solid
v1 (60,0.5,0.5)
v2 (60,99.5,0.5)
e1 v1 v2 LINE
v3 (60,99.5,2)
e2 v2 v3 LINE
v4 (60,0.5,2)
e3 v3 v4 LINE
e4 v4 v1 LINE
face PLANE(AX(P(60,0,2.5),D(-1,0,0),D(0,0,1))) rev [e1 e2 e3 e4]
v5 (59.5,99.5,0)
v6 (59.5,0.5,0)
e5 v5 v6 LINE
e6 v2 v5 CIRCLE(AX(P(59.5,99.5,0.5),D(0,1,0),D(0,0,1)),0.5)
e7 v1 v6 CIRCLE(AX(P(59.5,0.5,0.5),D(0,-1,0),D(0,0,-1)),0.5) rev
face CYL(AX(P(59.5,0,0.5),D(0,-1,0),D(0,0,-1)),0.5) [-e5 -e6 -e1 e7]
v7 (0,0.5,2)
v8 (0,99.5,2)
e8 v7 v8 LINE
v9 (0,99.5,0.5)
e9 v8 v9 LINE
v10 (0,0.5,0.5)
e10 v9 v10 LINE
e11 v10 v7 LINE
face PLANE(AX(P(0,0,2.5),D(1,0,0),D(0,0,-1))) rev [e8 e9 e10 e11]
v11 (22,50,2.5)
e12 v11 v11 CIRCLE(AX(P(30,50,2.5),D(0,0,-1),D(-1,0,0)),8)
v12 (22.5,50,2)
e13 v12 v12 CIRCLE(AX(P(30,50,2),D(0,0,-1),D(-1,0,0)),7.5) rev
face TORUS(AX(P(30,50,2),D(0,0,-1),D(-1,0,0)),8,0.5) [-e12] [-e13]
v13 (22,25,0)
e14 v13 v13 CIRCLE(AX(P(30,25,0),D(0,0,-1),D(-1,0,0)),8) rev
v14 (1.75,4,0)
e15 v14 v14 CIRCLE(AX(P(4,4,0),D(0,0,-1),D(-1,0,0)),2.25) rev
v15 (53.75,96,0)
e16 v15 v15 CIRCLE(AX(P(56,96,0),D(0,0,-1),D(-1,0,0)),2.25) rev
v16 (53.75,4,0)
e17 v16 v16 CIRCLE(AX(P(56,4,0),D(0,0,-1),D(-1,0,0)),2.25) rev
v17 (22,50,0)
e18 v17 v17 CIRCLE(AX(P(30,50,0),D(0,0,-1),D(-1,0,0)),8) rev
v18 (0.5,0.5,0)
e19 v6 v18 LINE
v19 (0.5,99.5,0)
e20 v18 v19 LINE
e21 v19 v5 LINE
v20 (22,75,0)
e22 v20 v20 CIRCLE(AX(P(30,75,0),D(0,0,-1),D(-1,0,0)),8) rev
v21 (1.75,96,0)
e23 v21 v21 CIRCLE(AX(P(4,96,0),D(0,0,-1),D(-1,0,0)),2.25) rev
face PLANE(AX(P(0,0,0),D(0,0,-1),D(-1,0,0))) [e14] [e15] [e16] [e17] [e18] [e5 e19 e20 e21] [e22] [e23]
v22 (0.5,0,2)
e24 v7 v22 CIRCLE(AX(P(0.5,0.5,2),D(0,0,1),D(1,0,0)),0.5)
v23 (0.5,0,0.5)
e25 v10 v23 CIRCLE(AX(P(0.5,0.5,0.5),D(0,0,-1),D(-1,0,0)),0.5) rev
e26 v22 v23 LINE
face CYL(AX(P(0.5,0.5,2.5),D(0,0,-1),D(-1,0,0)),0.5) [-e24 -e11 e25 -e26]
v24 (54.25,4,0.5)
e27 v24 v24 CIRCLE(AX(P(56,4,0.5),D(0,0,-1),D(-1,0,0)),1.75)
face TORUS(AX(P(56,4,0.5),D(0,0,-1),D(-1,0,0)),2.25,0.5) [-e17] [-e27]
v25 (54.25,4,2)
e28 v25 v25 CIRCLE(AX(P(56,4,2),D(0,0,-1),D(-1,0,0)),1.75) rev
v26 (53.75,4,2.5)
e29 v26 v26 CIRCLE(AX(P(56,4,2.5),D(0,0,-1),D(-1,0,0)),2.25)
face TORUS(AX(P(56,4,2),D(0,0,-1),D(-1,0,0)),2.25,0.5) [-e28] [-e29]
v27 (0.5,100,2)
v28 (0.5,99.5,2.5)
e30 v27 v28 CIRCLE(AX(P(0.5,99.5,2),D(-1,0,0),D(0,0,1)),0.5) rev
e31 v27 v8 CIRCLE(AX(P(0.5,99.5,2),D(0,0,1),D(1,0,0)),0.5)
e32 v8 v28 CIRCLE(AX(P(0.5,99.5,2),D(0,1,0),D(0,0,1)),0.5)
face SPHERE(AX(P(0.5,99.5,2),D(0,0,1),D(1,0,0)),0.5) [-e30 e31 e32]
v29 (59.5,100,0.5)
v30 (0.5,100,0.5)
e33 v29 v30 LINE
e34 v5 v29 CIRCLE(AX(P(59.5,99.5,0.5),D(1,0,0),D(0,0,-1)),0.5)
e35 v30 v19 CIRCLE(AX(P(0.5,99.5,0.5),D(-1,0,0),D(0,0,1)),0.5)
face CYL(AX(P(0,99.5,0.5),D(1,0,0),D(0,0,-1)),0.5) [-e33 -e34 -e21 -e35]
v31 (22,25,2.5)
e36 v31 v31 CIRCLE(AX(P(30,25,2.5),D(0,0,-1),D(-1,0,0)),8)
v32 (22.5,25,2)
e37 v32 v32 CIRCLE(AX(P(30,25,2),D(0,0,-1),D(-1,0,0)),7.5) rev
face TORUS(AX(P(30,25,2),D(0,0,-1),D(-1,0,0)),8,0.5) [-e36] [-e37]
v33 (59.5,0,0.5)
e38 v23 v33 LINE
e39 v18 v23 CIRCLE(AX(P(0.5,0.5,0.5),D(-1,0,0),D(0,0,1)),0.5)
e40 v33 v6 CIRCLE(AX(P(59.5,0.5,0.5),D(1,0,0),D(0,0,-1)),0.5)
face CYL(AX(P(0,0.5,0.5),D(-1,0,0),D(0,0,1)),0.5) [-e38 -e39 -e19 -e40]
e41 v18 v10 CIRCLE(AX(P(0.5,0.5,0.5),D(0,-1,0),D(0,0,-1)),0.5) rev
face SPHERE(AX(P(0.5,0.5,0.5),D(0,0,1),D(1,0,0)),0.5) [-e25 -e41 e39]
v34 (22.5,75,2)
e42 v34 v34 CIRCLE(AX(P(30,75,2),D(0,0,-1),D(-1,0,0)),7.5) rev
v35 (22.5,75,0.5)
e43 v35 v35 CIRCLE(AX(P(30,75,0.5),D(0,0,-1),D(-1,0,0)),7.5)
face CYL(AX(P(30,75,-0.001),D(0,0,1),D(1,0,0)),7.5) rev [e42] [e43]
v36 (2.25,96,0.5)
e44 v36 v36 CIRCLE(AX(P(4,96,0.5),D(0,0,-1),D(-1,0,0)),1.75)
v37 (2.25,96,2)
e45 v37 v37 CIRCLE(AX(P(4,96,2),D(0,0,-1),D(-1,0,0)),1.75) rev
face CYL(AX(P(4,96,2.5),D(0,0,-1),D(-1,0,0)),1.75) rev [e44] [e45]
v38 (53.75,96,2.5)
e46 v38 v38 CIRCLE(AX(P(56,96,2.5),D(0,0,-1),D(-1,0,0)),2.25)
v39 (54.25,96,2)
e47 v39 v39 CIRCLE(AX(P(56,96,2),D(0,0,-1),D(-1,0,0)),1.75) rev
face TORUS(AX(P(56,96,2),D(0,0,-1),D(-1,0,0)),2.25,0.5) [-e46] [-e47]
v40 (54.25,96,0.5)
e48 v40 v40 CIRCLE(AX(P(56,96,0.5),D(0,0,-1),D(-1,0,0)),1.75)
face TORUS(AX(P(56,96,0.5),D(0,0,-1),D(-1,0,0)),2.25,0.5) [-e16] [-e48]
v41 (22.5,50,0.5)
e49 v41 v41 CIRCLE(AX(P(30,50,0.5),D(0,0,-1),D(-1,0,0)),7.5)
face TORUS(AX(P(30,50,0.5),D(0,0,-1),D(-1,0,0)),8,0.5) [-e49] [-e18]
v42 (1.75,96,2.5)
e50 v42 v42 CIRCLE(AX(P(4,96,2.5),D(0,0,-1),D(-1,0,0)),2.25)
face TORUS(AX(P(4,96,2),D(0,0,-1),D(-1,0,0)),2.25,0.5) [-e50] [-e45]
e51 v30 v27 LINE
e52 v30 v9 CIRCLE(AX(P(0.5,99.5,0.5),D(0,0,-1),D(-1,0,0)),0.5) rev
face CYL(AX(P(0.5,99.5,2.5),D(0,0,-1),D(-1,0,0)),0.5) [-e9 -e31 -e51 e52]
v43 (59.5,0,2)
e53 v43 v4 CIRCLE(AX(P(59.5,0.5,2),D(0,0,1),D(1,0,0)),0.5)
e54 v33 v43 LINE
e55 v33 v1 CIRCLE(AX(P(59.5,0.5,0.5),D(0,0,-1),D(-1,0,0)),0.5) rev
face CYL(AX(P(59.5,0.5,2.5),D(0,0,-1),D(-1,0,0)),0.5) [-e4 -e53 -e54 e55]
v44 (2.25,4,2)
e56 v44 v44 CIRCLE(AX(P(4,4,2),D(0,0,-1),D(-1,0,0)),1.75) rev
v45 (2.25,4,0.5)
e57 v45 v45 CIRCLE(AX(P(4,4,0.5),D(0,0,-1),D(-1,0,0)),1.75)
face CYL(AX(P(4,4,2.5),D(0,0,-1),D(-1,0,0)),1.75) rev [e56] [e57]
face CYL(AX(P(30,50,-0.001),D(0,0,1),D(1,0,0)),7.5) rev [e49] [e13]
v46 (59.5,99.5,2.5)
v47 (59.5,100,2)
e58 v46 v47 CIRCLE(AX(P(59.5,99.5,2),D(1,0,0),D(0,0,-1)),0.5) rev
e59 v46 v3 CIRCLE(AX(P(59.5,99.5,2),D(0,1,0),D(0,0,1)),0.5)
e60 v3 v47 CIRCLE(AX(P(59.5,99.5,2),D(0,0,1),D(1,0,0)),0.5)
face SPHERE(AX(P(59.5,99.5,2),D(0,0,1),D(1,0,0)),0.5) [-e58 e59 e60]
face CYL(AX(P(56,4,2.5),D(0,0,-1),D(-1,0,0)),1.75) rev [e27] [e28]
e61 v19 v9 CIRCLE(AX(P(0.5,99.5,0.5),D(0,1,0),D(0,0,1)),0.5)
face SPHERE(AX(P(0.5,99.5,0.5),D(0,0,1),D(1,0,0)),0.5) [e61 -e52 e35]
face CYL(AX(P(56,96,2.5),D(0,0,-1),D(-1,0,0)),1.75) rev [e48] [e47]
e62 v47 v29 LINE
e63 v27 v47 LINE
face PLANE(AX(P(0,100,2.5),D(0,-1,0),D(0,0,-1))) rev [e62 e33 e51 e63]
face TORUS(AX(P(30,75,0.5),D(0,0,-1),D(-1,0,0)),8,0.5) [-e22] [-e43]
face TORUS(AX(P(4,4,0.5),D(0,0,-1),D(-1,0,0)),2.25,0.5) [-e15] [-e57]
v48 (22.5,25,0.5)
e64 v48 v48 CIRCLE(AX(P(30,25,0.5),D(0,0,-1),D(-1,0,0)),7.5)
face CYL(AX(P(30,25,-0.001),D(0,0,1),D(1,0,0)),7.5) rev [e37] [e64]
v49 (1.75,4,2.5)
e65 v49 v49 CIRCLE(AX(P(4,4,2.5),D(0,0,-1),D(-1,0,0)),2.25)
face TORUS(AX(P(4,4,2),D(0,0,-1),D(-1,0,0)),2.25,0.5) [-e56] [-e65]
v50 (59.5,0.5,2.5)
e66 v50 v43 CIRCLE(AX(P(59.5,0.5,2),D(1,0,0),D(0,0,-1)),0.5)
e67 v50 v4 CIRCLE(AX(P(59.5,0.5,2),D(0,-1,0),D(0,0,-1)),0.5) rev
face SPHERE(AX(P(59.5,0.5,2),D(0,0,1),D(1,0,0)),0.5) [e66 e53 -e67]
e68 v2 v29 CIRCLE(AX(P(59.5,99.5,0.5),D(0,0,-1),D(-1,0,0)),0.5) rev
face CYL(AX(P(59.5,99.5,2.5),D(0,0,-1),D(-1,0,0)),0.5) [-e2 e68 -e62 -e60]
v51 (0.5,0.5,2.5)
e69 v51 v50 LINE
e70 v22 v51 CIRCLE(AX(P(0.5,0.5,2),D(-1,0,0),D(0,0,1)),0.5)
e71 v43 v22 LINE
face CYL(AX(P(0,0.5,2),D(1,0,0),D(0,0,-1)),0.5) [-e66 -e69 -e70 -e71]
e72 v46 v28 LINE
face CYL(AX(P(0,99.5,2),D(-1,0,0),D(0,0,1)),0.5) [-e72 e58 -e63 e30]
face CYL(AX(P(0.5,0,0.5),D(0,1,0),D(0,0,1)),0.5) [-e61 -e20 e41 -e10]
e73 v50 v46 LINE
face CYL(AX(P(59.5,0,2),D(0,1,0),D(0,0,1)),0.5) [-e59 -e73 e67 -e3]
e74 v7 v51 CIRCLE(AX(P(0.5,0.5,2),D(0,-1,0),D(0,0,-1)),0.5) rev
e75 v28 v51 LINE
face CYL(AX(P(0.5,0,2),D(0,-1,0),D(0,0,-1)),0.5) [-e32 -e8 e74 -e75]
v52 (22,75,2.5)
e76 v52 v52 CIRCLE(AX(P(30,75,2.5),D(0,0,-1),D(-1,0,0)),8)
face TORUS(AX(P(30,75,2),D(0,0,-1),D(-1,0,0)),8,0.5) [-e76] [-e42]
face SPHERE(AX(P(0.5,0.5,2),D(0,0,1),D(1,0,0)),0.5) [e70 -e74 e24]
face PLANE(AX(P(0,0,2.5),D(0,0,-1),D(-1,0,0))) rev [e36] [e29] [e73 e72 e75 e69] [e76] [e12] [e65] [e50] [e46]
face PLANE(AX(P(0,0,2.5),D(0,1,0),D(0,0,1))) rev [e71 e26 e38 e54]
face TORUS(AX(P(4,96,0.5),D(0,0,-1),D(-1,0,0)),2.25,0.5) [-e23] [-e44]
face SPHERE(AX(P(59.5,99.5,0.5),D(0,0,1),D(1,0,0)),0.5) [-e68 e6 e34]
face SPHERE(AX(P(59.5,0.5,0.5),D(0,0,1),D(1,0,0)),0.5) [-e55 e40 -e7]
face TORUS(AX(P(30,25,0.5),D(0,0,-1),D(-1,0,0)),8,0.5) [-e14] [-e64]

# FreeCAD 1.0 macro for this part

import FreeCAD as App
import Part
import Sketcher

V = App.Vector
Q = App.Units.Quantity


def add_polygon(sketch, points):
    """Adds a closed chain of lines whose ends are joined by coincident constraints."""
    first, n = sketch.GeometryCount, len(points)
    for a, b in zip(points, points[1:] + points[:1]):
        sketch.addGeometry(Part.LineSegment(App.Vector(*a, 0), App.Vector(*b, 0)), False)
    for i in range(n):
        sketch.addConstraint(Sketcher.Constraint("Coincident", first + i, 2, first + (i + 1) % n, 1))

doc = App.newDocument("Part")
body = doc.addObject("PartDesign::Body", "Body")

# Sketch on XY plane
sketch1 = body.newObject("Sketcher::SketchObject", "Sketch")
sketch1.AttachmentSupport = (doc.getObject("XY_Plane"), [""])
sketch1.MapMode = "FlatFace"
add_polygon(sketch1, [(0, 100), (0, 0), (60, 0), (60, 100)])  # lines 0-3
sketch1.addGeometry(Part.Circle(V(4, 4, 0), V(0, 0, 1), 1.75), False)  # 4
sketch1.addGeometry(Part.Circle(V(56, 4, 0), V(0, 0, 1), 1.75), False)  # 5
sketch1.addGeometry(Part.Circle(V(4, 96, 0), V(0, 0, 1), 1.75), False)  # 6
sketch1.addGeometry(Part.Circle(V(56, 96, 0), V(0, 0, 1), 1.75), False)  # 7
sketch1.addConstraint([
    Sketcher.Constraint("Vertical", 0),
    Sketcher.Constraint("Horizontal", 1),
    Sketcher.Constraint("Vertical", 2),
    Sketcher.Constraint("Horizontal", 3),
    Sketcher.Constraint("Coincident", 0, 2, -1, 1),
    Sketcher.Constraint("Equal", 4, 5),
    Sketcher.Constraint("Equal", 5, 6),
    Sketcher.Constraint("Equal", 6, 7),
    Sketcher.Constraint("Horizontal", 4, 3, 5, 3),
    Sketcher.Constraint("Horizontal", 6, 3, 7, 3),
    Sketcher.Constraint("Vertical", 4, 3, 6, 3),
    Sketcher.Constraint("Vertical", 5, 3, 7, 3),
    Sketcher.Constraint("Diameter", 4, Q("3.5 mm")),
    Sketcher.Constraint("DistanceX", 1, 1, 1, 2, Q("60 mm")),
    Sketcher.Constraint("DistanceY", 0, 2, 0, 1, Q("100 mm")),
    Sketcher.Constraint("DistanceX", -1, 1, 4, 3, Q("4 mm")),
    Sketcher.Constraint("DistanceY", -1, 1, 4, 3, Q("4 mm")),
    Sketcher.Constraint("DistanceX", -1, 1, 5, 3, Q("56 mm")),
    Sketcher.Constraint("DistanceY", -1, 1, 6, 3, Q("96 mm")),
])
pad1 = body.newObject("PartDesign::Pad", "Pad")
pad1.Profile = sketch1
pad1.Length = 2.5

# Sketch on XY plane
sketch2 = body.newObject("Sketcher::SketchObject", "Sketch001")
sketch2.AttachmentSupport = (doc.getObject("XY_Plane"), [""])
sketch2.MapMode = "FlatFace"
sketch2.AttachmentOffset = App.Placement(V(0, 0, 2.5), App.Rotation())
sketch2.addGeometry(Part.Circle(V(30, 50, 0), V(0, 0, 1), 7.5), False)
sketch2.addConstraint([
    Sketcher.Constraint("Diameter", 0, Q("15 mm")),
    Sketcher.Constraint("DistanceX", -1, 1, 0, 3, Q("30 mm")),
    Sketcher.Constraint("DistanceY", -1, 1, 0, 3, Q("50 mm")),
])
pocket1 = body.newObject("PartDesign::Pocket", "Pocket")
pocket1.Profile = sketch2
pocket1.Type = "UpToFirst"

# Sketch on XY plane
sketch3 = body.newObject("Sketcher::SketchObject", "Sketch002")
sketch3.AttachmentSupport = (doc.getObject("XY_Plane"), [""])
sketch3.MapMode = "FlatFace"
sketch3.AttachmentOffset = App.Placement(V(0, 0, 2.5), App.Rotation())
sketch3.addGeometry(Part.Circle(V(30, 75, 0), V(0, 0, 1), 7.5), False)
sketch3.addConstraint([
    Sketcher.Constraint("Diameter", 0, Q("15 mm")),
    Sketcher.Constraint("DistanceX", -1, 1, 0, 3, Q("30 mm")),
    Sketcher.Constraint("DistanceY", -1, 1, 0, 3, Q("75 mm")),
])
pocket2 = body.newObject("PartDesign::Pocket", "Pocket001")
pocket2.Profile = sketch3
pocket2.Type = "UpToFirst"

# Sketch on XY plane
sketch4 = body.newObject("Sketcher::SketchObject", "Sketch003")
sketch4.AttachmentSupport = (doc.getObject("XY_Plane"), [""])
sketch4.MapMode = "FlatFace"
sketch4.AttachmentOffset = App.Placement(V(0, 0, 2.5), App.Rotation())
sketch4.addGeometry(Part.Circle(V(30, 25, 0), V(0, 0, 1), 7.5), False)
sketch4.addConstraint([
    Sketcher.Constraint("Diameter", 0, Q("15 mm")),
    Sketcher.Constraint("DistanceX", -1, 1, 0, 3, Q("30 mm")),
    Sketcher.Constraint("DistanceY", -1, 1, 0, 3, Q("25 mm")),
])
pocket3 = body.newObject("PartDesign::Pocket", "Pocket002")
pocket3.Profile = sketch4
pocket3.Type = "UpToFirst"
doc.recompute()

fillet = body.newObject("PartDesign::Fillet", "Fillet")
fillet.Base = (pocket3, ["Edge1"])
fillet.UseAllEdges = True
fillet.Radius = 0.5

doc.recompute()
